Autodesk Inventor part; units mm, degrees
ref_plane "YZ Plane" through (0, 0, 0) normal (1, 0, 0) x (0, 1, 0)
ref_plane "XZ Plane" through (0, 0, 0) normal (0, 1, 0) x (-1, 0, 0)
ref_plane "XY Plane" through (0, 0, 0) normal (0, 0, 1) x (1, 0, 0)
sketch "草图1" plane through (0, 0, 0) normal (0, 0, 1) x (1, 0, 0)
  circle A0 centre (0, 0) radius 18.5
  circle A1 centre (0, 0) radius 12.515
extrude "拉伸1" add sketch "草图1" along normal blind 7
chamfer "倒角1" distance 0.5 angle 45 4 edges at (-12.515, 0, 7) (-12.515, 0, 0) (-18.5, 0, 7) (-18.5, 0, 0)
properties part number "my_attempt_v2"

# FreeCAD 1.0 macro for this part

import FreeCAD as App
import Part
import Sketcher

V = App.Vector
Q = App.Units.Quantity


def edges_at(feature, points):
    """Names of the edges that pass closest to the given points."""
    edges = feature.Shape.Edges
    near = lambda p: min(range(len(edges)), key=lambda i: edges[i].distToShape(Part.Vertex(*p))[0])
    return sorted({f"Edge{near(p) + 1}" for p in points})

doc = App.newDocument("Part")
params = doc.addObject("Spreadsheet::Sheet", "Params")
for row, (alias, value) in enumerate([
    ("sketch1_diameter", "37 mm"),
    ("sketch1_diameter2", "25.03 mm"),
    ("pad1_length", "7 mm"),
    ("chamfer_size", "0.5 mm"),
], start=1):
    params.set(f"A{row}", alias)
    params.set(f"B{row}", "=" + value)
    params.setAlias(f"B{row}", alias)

body = doc.addObject("PartDesign::Body", "Body")

sketch1 = body.newObject("Sketcher::SketchObject", "Sketch")
sketch1.AttachmentSupport = (doc.getObject("XY_Plane"), [""])
sketch1.MapMode = "FlatFace"
sketch1.addGeometry([
    Part.Circle(V(0, 0, 0), V(0, 0, 1), 18),
    Part.Circle(V(0, 0, 0), V(0, 0, 1), 13),
], False)
sketch1.addConstraint([
    Sketcher.Constraint("Coincident", 0, 3, -1, 1),
    Sketcher.Constraint("Coincident", 1, 3, -1, 1),
    Sketcher.Constraint("Diameter", 0, Q("37 mm")),
    Sketcher.Constraint("Diameter", 1, Q("25.03 mm")),
])
sketch1.setExpression("Constraints[2]", "Params.sketch1_diameter")
sketch1.setExpression("Constraints[3]", "Params.sketch1_diameter2")
pad1 = body.newObject("PartDesign::Pad", "Pad")
pad1.Profile = sketch1
pad1.setExpression("Length", "Params.pad1_length")
doc.recompute()

chamfer = body.newObject("PartDesign::Chamfer", "Chamfer")
chamfer.Base = (pad1, edges_at(pad1, [
    (-12.515, 0, 7),
    (-12.515, 0, 0),
    (-18.5, 0, 7),
    (-18.5, 0, 0),
]))
chamfer.setExpression("Size", "Params.chamfer_size")

doc.recompute()
